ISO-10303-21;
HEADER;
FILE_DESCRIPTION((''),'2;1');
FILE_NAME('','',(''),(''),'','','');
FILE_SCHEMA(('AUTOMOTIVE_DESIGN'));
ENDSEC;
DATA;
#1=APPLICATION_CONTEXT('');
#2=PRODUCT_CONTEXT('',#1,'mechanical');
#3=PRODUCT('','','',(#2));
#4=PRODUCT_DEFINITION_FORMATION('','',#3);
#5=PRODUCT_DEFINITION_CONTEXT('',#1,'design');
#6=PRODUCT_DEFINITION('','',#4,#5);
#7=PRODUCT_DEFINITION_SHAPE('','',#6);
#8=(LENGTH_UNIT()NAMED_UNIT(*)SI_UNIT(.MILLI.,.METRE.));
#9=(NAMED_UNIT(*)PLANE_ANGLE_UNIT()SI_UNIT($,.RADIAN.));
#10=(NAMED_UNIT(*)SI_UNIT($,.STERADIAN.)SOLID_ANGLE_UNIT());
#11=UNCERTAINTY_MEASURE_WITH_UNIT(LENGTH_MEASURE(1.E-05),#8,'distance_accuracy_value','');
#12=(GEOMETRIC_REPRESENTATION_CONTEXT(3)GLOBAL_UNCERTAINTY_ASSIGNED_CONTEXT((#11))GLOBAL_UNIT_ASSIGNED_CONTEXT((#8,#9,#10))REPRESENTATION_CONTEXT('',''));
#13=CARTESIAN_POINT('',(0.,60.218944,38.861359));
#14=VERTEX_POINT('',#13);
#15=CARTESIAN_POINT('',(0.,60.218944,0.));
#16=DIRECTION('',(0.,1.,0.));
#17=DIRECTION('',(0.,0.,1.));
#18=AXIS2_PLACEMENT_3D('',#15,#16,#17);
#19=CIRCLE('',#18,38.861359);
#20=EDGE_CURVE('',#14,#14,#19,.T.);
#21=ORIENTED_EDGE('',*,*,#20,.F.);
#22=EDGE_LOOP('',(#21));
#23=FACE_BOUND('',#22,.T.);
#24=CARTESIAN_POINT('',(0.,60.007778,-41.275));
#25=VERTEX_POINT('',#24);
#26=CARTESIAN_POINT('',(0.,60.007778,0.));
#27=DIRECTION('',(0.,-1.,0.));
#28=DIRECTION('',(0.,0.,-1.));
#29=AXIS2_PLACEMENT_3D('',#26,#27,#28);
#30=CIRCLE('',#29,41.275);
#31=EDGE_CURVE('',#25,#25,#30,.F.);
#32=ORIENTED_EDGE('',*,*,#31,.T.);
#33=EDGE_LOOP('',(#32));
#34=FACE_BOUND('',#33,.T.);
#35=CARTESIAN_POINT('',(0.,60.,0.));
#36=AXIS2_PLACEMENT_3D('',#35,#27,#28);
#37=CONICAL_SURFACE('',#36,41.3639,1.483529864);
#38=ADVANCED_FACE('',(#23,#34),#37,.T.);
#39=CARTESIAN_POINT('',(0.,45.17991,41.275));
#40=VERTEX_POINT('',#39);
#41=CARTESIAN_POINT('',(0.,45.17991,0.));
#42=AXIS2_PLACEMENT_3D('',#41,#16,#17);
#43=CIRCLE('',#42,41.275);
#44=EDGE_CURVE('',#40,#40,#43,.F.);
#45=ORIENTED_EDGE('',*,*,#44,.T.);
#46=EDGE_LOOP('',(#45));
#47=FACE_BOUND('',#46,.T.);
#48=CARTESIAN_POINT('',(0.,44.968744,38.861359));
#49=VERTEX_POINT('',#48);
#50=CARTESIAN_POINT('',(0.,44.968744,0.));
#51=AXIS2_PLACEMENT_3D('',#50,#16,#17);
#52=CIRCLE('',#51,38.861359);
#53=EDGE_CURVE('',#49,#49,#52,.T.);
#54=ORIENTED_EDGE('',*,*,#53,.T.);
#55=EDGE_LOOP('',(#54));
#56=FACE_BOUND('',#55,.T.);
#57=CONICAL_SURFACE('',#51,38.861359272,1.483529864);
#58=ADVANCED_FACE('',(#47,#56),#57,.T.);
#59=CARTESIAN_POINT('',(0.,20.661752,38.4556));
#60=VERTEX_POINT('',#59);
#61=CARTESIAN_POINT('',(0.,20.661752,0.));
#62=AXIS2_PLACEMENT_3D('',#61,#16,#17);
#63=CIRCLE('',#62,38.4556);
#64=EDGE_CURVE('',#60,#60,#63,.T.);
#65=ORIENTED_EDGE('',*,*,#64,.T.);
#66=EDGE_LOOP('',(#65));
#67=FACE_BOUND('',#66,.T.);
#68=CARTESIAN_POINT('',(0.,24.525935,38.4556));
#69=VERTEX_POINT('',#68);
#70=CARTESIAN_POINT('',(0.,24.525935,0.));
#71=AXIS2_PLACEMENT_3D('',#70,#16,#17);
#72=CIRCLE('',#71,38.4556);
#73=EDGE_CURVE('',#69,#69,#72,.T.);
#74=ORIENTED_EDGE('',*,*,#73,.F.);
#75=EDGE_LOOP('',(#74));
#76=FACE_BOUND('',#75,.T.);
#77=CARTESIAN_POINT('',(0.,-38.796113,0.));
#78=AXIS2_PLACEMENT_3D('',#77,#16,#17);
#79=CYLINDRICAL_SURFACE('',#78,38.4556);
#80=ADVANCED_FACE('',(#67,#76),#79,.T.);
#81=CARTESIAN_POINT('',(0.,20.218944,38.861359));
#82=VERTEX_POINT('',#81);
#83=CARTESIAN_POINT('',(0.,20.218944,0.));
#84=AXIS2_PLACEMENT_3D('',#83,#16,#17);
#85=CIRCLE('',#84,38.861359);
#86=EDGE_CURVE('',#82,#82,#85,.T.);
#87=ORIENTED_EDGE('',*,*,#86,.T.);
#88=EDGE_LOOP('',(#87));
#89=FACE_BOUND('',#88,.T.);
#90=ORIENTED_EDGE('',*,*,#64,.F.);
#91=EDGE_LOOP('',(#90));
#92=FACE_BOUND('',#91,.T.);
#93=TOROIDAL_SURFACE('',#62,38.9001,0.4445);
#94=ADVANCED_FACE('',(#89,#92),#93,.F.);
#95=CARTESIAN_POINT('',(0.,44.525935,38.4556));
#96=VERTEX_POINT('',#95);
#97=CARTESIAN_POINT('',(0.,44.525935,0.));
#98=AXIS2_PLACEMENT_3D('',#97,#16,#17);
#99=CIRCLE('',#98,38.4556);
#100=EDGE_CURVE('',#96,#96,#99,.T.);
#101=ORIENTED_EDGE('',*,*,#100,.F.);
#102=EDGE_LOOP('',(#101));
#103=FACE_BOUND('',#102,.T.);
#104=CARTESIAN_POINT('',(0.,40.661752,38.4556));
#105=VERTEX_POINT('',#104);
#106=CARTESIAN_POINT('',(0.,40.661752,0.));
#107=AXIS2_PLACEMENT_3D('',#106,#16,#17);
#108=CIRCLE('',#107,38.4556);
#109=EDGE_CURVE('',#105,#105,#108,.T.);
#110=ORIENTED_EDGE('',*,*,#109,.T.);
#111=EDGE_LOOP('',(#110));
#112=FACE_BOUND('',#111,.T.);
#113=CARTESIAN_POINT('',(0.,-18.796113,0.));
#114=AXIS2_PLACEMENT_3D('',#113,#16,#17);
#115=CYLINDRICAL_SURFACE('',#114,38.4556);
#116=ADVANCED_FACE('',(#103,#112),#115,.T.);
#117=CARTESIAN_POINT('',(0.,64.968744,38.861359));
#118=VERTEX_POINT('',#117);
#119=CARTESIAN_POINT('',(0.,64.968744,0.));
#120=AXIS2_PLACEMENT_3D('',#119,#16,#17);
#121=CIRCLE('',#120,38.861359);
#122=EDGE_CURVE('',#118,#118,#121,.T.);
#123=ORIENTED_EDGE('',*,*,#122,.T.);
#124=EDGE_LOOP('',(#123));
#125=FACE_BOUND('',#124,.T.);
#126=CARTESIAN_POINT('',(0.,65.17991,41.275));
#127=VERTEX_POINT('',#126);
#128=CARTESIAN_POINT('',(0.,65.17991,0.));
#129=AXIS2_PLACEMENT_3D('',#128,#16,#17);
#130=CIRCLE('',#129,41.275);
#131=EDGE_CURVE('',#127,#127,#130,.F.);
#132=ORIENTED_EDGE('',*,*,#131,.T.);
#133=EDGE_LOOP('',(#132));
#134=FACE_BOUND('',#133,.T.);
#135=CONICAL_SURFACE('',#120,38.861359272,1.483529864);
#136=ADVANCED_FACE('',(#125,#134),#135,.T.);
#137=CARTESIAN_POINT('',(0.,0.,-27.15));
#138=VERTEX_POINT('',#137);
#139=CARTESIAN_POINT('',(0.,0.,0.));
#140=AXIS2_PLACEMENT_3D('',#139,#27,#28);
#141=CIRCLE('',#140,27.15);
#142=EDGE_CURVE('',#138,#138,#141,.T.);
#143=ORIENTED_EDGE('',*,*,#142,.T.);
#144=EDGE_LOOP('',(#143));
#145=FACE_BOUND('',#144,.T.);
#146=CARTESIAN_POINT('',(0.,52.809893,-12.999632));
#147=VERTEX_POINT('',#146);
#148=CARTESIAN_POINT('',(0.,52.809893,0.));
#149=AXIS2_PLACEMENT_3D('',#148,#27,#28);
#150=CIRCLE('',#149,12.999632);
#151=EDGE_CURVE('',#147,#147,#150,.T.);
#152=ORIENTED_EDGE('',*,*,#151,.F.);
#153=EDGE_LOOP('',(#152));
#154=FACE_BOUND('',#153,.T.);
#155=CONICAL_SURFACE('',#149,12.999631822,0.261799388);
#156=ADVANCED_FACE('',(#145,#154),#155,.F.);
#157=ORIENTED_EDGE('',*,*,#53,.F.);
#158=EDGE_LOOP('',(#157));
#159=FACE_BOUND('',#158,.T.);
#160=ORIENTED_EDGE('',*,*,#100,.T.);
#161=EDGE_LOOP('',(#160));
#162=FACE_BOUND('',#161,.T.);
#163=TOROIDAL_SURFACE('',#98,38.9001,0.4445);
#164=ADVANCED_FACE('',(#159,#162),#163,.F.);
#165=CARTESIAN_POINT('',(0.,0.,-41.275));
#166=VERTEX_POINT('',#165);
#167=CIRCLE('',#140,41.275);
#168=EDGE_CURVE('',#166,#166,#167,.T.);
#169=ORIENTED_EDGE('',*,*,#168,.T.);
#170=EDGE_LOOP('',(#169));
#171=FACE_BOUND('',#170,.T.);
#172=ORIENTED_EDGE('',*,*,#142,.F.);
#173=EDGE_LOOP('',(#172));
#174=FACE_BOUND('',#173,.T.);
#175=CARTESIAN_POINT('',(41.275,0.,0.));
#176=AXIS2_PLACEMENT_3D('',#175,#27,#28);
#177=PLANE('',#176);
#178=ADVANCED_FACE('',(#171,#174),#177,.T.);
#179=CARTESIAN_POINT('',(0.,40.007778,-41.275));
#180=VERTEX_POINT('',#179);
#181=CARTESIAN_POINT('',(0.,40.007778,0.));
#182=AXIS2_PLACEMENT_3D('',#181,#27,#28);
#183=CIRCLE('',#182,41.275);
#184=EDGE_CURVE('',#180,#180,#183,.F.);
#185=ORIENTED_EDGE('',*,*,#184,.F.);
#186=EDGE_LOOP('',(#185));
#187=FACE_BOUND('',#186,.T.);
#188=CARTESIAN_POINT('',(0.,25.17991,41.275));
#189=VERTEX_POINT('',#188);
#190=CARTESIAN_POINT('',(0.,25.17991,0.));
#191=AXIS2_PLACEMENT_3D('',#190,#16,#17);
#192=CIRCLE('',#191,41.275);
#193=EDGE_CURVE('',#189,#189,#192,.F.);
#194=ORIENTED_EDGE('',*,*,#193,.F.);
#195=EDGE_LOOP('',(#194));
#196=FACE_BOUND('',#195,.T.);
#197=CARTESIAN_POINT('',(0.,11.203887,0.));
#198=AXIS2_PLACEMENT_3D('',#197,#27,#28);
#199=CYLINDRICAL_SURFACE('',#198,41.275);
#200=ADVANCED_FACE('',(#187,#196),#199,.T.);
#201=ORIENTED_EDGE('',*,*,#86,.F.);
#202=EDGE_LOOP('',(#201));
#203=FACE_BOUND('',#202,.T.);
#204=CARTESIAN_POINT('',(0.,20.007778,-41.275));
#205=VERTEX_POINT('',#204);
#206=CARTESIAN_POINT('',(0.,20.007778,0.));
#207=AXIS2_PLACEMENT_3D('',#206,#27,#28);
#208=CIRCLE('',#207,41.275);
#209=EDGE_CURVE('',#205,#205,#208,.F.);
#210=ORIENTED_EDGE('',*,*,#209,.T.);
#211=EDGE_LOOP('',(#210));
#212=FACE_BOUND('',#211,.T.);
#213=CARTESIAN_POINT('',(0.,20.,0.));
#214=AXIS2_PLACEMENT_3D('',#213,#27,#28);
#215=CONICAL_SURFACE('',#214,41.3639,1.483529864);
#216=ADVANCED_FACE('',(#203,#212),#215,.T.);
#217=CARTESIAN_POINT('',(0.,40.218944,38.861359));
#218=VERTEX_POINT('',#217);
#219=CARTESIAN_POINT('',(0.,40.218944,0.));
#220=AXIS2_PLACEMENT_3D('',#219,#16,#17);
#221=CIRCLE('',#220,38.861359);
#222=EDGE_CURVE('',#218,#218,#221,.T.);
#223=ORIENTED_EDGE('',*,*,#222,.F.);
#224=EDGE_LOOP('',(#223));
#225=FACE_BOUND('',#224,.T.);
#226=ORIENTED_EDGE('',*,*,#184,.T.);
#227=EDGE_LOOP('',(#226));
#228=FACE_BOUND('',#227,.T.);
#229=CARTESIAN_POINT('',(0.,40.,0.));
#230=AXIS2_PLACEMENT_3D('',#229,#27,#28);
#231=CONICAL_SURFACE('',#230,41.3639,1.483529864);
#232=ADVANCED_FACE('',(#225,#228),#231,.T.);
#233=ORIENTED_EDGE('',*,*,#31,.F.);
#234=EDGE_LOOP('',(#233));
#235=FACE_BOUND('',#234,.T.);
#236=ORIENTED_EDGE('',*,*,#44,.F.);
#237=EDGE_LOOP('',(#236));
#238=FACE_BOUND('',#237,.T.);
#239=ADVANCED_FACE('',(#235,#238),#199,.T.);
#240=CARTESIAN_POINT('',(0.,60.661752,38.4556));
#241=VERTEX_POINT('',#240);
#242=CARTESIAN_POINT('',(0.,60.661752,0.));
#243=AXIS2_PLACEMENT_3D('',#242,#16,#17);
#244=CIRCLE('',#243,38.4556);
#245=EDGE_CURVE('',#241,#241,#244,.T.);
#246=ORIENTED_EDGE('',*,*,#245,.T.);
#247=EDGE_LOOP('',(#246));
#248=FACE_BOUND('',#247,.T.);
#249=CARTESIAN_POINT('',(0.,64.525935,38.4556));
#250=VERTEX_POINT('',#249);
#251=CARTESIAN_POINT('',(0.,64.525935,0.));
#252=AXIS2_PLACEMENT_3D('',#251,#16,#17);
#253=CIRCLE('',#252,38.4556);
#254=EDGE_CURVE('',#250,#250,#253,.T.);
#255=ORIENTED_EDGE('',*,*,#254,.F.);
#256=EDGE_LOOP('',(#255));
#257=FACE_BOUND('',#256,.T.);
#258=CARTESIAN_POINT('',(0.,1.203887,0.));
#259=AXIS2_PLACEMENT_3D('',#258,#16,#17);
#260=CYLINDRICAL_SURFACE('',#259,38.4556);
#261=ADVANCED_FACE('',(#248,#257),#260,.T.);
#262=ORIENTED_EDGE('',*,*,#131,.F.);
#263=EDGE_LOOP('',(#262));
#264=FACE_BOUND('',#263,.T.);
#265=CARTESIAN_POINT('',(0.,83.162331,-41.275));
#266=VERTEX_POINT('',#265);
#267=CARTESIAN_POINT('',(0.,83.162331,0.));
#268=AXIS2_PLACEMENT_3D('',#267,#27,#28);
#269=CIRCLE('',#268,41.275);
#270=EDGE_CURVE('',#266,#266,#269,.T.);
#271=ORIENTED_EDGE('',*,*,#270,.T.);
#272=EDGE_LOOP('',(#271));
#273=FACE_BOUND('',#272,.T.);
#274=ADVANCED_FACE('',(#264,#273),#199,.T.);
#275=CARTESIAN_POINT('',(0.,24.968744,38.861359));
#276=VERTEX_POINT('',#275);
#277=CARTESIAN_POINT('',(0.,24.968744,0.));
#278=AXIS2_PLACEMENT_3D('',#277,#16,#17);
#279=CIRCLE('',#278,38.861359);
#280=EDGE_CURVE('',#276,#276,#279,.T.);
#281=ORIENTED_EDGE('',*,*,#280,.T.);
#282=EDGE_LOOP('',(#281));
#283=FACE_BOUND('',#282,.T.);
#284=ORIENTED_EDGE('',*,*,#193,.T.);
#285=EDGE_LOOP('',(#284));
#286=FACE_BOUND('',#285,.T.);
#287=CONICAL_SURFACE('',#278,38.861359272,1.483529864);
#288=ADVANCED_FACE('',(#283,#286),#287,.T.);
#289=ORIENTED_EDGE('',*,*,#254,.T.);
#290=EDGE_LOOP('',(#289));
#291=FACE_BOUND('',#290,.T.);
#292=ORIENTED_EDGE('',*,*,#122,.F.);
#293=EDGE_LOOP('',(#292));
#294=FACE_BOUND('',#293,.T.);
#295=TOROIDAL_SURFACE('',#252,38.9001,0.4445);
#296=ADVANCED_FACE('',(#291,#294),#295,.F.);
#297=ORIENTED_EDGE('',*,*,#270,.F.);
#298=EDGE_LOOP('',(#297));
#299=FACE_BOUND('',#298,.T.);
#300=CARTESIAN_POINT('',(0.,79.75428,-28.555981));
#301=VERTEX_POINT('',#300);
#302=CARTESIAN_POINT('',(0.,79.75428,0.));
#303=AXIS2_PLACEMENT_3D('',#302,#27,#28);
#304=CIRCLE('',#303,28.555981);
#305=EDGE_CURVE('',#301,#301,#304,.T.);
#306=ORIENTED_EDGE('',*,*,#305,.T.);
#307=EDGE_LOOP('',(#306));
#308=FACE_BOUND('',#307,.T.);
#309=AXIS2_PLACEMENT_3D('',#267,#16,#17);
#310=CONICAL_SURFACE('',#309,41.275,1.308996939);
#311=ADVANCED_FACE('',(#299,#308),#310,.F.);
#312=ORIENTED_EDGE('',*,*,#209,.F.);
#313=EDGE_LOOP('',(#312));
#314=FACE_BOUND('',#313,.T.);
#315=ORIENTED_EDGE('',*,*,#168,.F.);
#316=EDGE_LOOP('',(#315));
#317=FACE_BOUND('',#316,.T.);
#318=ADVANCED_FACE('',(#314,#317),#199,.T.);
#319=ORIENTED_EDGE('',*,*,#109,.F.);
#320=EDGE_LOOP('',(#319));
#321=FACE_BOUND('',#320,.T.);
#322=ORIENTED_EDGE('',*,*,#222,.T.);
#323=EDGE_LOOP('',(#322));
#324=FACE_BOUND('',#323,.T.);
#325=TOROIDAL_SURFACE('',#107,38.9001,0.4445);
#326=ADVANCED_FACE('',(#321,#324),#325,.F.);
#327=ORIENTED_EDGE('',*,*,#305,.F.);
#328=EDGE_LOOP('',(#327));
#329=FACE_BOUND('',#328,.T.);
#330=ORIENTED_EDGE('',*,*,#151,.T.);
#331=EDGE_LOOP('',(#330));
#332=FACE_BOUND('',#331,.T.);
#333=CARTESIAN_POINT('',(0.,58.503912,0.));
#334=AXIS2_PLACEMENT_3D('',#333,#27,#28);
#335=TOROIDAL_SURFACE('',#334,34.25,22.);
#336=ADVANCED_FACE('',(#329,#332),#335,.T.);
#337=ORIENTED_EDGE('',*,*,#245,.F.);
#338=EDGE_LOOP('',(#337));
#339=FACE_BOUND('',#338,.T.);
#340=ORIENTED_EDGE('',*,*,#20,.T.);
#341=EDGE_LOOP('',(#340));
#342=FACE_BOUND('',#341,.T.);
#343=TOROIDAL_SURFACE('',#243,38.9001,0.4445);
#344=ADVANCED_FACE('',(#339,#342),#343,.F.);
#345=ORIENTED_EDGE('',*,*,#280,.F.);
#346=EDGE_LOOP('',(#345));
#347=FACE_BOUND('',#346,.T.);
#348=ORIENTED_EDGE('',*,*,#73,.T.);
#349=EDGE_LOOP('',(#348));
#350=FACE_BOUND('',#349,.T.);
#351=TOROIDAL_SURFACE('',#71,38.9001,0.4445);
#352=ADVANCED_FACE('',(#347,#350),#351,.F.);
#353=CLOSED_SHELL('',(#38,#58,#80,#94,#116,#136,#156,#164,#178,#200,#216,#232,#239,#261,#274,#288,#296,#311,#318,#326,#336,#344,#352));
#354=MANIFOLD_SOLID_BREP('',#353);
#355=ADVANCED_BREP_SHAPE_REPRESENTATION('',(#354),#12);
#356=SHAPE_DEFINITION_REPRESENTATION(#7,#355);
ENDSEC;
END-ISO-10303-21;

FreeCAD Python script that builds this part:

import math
import FreeCAD as App
import Part
import Sketcher
from FreeCAD import Vector
Q = App.Units.Quantity

doc = App.newDocument("Part")
body = doc.addObject("PartDesign::Body", "Body")

# Sketch on XY plane
sketch1 = body.newObject("Sketcher::SketchObject", "Sketch")
sketch1.AttachmentSupport = (doc.getObject("XY_Plane"), [""])
sketch1.MapMode = "FlatFace"
sketch1.addGeometry([
    Part.LineSegment(Vector(41, 0, 0), Vector(41, 83, 0)),  # 0
    Part.LineSegment(Vector(41, 83, 0), Vector(29, 80, 0)),  # 1
    Part.ArcOfCircle(Part.Circle(Vector(34, 59, 0), Vector(0, 0, 1), 22), math.radians(105), math.radians(195)),  # 2
    Part.LineSegment(Vector(13, 53, 0), Vector(27, 0, 0)),  # 3
    Part.LineSegment(Vector(27, 0, 0), Vector(41, 0, 0)),  # 4
], False)
sketch1.addConstraint([
    Sketcher.Constraint("Coincident", 0, 2, 1, 1),
    Sketcher.Constraint("Tangent", 1, 2, 2, 1),
    Sketcher.Constraint("Tangent", 2, 2, 3, 1),
    Sketcher.Constraint("Coincident", 3, 2, 4, 1),
    Sketcher.Constraint("Coincident", 4, 2, 0, 1),
    Sketcher.Constraint("Vertical", 0),
    Sketcher.Constraint("Horizontal", 4),
    Sketcher.Constraint("PointOnObject", 3, 2, -1),
    Sketcher.Constraint("Perpendicular", 1, 3),
    Sketcher.Constraint("Radius", 2, Q("22 mm")),
    Sketcher.Constraint("Angle", 1, Q("-165 deg")),
    Sketcher.Constraint("DistanceX", 3, 2, 2, 3, Q("7.1 mm")),
    Sketcher.Constraint("DistanceX", 4, 1, 4, 2, Q("14.125 mm")),
    Sketcher.Constraint("DistanceX", -1, 1, 2, 3, Q("34.25 mm")),
])
revolution = body.newObject("PartDesign::Revolution", "Revolution")
revolution.Profile = sketch1
revolution.ReferenceAxis = (sketch1, ["V_Axis"])
revolution.Angle = 360

# Sketch on YZ plane
sketch2 = body.newObject("Sketcher::SketchObject", "Sketch001")
sketch2.AttachmentSupport = (doc.getObject("YZ_Plane"), [""])
sketch2.MapMode = "FlatFace"
sketch2.addGeometry([
    Part.LineSegment(Vector(20, -41.36, 0), Vector(20.22, -38.86, 0)),  # 0
    Part.ArcOfCircle(Part.Circle(Vector(20.66, -38.9, 0), Vector(0, 0, 1), 0.44), math.radians(90), math.radians(175)),  # 1
    Part.LineSegment(Vector(20.66, -38.46, 0), Vector(24.53, -38.46, 0)),  # 2
    Part.ArcOfCircle(Part.Circle(Vector(24.53, -38.9, 0), Vector(0, 0, 1), 0.44), math.radians(5), math.radians(90)),  # 3
    Part.LineSegment(Vector(24.97, -38.86, 0), Vector(25.19, -41.36, 0)),  # 4
    Part.LineSegment(Vector(25.19, -41.36, 0), Vector(20, -41.36, 0)),  # 5
], False)
sketch2.addConstraint([
    Sketcher.Constraint("Tangent", 0, 2, 1, 2),
    Sketcher.Constraint("Tangent", 1, 1, 2, 1),
    Sketcher.Constraint("Tangent", 2, 2, 3, 2),
    Sketcher.Constraint("Tangent", 3, 1, 4, 1),
    Sketcher.Constraint("Coincident", 4, 2, 5, 1),
    Sketcher.Constraint("Coincident", 5, 2, 0, 1),
    Sketcher.Constraint("Horizontal", 2),
    Sketcher.Constraint("Horizontal", 5),
    Sketcher.Constraint("Equal", 1, 3),
    Sketcher.Constraint("Horizontal", 0, 2, 3, 1),
    Sketcher.Constraint("Angle", 0, Q("85 deg")),
    Sketcher.Constraint("DistanceX", -1, 1, 5, 2, Q("20 mm")),
    Sketcher.Constraint("Radius", 1, Q("0.4445 mm")),
    Sketcher.Constraint("Distance", 0, Q("2.5121 mm")),
    Sketcher.Constraint("DistanceY", 1, 3, -1, 1, Q("38.9001 mm")),
    Sketcher.Constraint("DistanceX", 0, 2, 3, 1, Q("4.7498 mm")),
])
groove = body.newObject("PartDesign::Groove", "Groove")
groove.Profile = sketch2
groove.ReferenceAxis = (sketch2, ["H_Axis"])
groove.Angle = 360
doc.recompute()

linearpattern = body.newObject("PartDesign::LinearPattern", "LinearPattern")
linearpattern.Originals = [groove]
linearpattern.Direction = (doc.getObject("Y_Axis"), [""])
linearpattern.Mode = "offset"
linearpattern.Offset = 20
linearpattern.Occurrences = 3
body.Tip = linearpattern

doc.recompute()
